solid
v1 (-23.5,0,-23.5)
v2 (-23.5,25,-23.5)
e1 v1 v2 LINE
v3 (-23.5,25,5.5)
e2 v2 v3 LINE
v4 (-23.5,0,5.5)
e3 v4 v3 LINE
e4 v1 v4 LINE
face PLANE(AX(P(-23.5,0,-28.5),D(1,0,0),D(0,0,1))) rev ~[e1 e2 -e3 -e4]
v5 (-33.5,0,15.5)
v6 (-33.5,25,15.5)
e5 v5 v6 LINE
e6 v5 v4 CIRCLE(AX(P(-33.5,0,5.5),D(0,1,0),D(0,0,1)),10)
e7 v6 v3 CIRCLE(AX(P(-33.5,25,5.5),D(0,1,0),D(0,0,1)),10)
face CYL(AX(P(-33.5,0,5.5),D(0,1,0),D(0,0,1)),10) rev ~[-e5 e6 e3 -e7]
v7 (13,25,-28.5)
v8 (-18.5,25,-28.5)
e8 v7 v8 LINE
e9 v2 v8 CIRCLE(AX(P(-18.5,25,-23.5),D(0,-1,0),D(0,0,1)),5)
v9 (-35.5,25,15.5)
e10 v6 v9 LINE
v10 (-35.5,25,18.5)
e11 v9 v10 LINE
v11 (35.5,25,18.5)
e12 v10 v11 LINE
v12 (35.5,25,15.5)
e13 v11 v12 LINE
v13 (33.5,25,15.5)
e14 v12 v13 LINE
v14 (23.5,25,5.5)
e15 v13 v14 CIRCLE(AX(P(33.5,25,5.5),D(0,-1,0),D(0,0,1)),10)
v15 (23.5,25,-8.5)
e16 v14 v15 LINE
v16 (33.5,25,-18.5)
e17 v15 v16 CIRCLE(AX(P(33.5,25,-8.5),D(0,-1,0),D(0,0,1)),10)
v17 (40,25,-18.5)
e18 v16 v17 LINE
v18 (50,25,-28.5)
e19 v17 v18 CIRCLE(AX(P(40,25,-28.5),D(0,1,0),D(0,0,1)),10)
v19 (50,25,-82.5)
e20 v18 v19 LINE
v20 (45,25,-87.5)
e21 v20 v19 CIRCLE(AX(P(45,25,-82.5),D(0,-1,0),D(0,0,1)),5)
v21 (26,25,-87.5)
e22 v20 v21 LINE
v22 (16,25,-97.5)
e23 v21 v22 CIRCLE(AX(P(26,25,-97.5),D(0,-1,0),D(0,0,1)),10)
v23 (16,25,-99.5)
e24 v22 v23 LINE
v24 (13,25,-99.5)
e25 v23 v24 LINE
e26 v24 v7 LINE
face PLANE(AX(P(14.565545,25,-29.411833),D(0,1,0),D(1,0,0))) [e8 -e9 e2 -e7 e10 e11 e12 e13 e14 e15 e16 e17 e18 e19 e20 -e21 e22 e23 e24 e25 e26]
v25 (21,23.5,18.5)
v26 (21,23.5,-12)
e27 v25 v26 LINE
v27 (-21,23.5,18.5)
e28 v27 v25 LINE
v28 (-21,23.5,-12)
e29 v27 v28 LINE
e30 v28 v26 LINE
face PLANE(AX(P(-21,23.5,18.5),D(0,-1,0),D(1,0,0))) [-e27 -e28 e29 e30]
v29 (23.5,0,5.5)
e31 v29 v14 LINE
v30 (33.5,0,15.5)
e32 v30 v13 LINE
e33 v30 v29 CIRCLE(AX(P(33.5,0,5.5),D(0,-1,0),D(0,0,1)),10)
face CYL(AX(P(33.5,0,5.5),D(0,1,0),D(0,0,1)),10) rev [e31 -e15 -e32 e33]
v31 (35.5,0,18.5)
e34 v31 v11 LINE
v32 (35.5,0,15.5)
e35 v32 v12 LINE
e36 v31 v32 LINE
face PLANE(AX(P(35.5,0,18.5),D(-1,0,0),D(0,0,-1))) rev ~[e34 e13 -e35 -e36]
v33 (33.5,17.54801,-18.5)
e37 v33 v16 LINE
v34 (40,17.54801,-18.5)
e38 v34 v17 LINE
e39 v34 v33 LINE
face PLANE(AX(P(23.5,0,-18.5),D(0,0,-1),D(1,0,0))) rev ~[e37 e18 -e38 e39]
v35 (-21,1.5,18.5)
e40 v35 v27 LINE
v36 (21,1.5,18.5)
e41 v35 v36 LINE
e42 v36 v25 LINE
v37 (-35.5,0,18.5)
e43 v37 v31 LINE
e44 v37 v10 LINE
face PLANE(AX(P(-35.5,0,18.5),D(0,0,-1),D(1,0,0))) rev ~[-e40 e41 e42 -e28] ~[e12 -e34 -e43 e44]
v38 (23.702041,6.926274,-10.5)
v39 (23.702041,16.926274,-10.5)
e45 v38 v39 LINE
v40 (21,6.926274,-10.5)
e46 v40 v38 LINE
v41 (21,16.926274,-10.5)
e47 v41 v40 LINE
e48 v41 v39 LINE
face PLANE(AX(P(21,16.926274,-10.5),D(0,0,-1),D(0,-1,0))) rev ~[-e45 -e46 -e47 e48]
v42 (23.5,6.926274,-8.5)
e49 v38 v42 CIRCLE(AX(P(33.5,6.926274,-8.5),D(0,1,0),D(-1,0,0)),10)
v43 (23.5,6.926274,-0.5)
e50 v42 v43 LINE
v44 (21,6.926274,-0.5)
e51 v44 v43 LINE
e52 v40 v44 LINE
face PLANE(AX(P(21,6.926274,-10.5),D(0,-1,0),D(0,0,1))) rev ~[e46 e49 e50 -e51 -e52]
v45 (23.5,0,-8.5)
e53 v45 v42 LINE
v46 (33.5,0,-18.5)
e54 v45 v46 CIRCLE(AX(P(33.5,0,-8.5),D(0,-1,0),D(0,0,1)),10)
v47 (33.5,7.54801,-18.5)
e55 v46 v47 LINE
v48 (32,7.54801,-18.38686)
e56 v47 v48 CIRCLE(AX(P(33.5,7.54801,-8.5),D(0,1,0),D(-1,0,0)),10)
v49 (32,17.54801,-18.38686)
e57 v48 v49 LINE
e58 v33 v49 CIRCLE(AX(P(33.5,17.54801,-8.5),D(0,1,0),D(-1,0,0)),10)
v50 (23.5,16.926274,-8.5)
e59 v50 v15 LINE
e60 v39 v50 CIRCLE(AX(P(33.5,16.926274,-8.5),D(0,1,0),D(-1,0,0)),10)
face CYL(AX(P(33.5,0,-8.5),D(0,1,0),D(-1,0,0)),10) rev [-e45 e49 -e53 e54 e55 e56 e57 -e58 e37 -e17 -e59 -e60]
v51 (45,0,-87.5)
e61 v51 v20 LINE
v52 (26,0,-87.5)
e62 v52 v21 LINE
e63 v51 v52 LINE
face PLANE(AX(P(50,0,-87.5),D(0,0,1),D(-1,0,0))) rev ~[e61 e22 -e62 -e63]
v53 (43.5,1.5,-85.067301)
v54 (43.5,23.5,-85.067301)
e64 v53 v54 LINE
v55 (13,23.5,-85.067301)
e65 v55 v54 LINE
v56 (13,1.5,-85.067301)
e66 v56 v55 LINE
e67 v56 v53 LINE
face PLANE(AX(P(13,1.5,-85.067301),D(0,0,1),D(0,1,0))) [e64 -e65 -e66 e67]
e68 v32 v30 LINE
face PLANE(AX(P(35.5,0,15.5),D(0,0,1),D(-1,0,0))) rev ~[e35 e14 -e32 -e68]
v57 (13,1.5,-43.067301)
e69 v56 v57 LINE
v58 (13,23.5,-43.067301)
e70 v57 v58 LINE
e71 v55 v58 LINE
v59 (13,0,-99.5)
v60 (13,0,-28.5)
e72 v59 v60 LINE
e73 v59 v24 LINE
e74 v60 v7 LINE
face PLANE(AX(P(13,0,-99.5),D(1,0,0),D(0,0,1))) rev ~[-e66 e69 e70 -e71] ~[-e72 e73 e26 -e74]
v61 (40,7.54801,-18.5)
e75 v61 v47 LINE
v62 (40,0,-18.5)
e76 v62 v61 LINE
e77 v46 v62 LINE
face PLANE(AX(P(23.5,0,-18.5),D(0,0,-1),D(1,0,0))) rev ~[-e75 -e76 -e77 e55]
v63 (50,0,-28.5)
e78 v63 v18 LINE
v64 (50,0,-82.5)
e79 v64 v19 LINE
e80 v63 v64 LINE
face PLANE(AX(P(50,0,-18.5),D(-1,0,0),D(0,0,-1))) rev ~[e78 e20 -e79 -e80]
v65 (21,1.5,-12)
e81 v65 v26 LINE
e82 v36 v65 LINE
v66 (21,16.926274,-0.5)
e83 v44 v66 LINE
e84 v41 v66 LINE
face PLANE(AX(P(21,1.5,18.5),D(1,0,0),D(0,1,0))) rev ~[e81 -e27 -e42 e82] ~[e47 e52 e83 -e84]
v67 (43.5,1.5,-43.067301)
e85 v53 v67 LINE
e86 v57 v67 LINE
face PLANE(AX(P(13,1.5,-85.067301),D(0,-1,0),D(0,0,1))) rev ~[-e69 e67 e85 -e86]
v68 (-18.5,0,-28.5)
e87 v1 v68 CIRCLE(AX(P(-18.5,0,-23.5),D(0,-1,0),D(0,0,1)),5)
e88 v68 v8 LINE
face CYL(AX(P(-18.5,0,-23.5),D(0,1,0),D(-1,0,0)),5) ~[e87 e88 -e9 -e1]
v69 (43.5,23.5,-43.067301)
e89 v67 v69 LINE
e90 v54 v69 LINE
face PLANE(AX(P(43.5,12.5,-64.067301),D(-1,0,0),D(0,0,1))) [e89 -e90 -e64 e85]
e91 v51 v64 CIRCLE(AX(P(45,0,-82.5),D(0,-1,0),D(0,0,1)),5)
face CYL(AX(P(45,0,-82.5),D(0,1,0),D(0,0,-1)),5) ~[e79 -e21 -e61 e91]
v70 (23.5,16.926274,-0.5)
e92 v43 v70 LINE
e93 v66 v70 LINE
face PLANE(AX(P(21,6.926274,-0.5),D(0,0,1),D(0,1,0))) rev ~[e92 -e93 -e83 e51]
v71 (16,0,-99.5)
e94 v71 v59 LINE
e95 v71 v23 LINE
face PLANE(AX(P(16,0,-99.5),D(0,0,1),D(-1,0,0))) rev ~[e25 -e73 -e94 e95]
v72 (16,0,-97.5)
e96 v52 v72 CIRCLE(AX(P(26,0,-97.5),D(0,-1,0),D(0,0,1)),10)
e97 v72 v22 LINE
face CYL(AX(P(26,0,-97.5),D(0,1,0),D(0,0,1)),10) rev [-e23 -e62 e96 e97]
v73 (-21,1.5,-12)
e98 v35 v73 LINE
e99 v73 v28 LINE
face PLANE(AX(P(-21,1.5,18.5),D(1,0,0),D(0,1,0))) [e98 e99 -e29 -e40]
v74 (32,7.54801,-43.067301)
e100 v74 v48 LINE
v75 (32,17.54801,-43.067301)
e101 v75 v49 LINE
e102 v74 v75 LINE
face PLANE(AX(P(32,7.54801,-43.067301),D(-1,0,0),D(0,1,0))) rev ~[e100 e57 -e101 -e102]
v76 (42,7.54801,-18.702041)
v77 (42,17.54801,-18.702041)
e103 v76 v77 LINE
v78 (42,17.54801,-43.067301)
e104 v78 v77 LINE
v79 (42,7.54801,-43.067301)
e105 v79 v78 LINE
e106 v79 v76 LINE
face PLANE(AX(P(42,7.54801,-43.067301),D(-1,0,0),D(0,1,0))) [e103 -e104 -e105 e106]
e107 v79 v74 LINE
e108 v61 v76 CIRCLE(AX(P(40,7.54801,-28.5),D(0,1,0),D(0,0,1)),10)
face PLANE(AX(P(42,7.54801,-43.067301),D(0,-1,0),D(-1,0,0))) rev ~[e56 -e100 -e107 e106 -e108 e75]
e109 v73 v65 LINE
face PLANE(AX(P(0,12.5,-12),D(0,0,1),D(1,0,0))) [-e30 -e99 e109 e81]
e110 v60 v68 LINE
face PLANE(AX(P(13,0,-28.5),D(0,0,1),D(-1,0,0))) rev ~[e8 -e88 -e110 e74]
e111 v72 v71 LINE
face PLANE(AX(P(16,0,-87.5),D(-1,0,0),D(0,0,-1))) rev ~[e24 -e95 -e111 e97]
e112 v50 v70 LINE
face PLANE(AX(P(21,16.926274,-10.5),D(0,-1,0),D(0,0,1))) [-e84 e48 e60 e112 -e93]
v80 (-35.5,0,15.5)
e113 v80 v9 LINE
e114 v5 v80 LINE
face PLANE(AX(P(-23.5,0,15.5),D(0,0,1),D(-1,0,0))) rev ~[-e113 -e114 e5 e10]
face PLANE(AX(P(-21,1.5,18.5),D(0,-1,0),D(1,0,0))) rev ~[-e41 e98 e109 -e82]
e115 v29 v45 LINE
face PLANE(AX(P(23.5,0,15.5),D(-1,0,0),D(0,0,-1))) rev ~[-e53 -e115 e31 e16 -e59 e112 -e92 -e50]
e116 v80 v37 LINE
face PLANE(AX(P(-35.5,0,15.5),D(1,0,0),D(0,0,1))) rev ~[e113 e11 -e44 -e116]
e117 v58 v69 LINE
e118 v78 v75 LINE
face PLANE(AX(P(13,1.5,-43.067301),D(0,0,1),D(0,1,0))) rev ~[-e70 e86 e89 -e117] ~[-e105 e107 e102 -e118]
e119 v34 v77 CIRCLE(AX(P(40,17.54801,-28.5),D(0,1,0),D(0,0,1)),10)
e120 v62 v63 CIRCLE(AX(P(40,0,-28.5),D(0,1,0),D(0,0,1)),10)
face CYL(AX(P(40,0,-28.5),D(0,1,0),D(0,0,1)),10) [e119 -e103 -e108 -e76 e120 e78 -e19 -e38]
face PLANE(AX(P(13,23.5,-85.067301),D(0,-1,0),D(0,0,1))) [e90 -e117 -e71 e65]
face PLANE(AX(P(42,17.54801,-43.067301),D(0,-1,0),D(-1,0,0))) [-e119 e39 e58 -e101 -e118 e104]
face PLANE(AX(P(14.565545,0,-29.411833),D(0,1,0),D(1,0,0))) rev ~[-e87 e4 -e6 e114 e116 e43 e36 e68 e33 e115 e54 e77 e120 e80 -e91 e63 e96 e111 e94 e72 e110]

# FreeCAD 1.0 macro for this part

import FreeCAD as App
import Part
import Sketcher

V = App.Vector


def edges_at(feature, points):
    """Names of the edges that pass closest to the given points."""
    edges = feature.Shape.Edges
    near = lambda p: min(range(len(edges)), key=lambda i: edges[i].distToShape(Part.Vertex(*p))[0])
    return sorted({f"Edge{near(p) + 1}" for p in points})


def add_polygon(sketch, points):
    """Adds a closed chain of lines whose ends are joined by coincident constraints."""
    first, n = sketch.GeometryCount, len(points)
    for a, b in zip(points, points[1:] + points[:1]):
        sketch.addGeometry(Part.LineSegment(App.Vector(*a, 0), App.Vector(*b, 0)), False)
    for i in range(n):
        sketch.addConstraint(Sketcher.Constraint("Coincident", first + i, 2, first + (i + 1) % n, 1))

doc = App.newDocument("Part")
params = doc.addObject("Spreadsheet::Sheet", "Params")
for row, (alias, value) in enumerate([
    ("sketch1_width", "12 mm"),
    ("sketch1_width2", "71 mm"),
    ("sketch1_width3", "34 mm"),
    ("sketch1_width4", "3 mm"),
    ("sketch1_height", "69 mm"),
    ("pad1_length", "25 mm"),
    ("sketch2_width", "42 mm"),
    ("sketch2_height", "22 mm"),
    ("pocket1_length", "30.5 mm"),
    ("sketch3_width", "22 mm"),
    ("sketch3_height", "42 mm"),
    ("pocket2_length", "30.5 mm"),
    ("fillet_radius", "10 mm"),
    ("fillet2_radius", "5 mm"),
    ("fillet3_radius", "5 mm"),
    ("sketch4_width", "10 mm"),
    ("pocket3_length", "30.5 mm"),
    ("sketch5_width", "10 mm"),
    ("pocket4_length", "30.5 mm"),
], start=1):
    params.set(f"A{row}", alias)
    params.set(f"B{row}", "=" + value)
    params.setAlias(f"B{row}", alias)

body = doc.addObject("PartDesign::Body", "Body")

# Sketch on XZ plane
sketch1 = body.newObject("Sketcher::SketchObject", "Sketch")
sketch1.AttachmentSupport = (doc.getObject("XZ_Plane"), [""])
sketch1.MapMode = "FlatFace"
add_polygon(sketch1, [(-23.5, 15.5), (-35.5, 15.5), (-35.5, 18.5), (35.5, 18.5), (35.5, 15.5), (23.5, 15.5), (23.5, -18.5), (50, -18.5), (50, -87.5), (16, -87.5), (16, -99.5), (13, -99.5), (13, -28.5), (-23.5, -28.5)])  # lines 0-13
sketch1.addConstraint(Sketcher.Constraint("Horizontal", 0))
sketch1.addConstraint(Sketcher.Constraint("Vertical", 1))
sketch1.addConstraint(Sketcher.Constraint("Horizontal", 2))
sketch1.addConstraint(Sketcher.Constraint("Vertical", 3))
sketch1.addConstraint(Sketcher.Constraint("Horizontal", 4))
sketch1.addConstraint(Sketcher.Constraint("Vertical", 5))
sketch1.addConstraint(Sketcher.Constraint("Horizontal", 6))
sketch1.addConstraint(Sketcher.Constraint("Vertical", 7))
sketch1.addConstraint(Sketcher.Constraint("Horizontal", 8))
sketch1.addConstraint(Sketcher.Constraint("Vertical", 9))
sketch1.addConstraint(Sketcher.Constraint("Horizontal", 10))
sketch1.addConstraint(Sketcher.Constraint("Vertical", 11))
sketch1.addConstraint(Sketcher.Constraint("Horizontal", 12))
sketch1.addConstraint(Sketcher.Constraint("Vertical", 13))
sketch1.addConstraint(Sketcher.Constraint("Symmetric", 0, 2, 3, 2, -2))
sketch1.addConstraint(Sketcher.Constraint("Equal", 0, 4))
sketch1.addConstraint(Sketcher.Constraint("Equal", 10, 1))
sketch1.addConstraint(Sketcher.Constraint("Equal", 8, 5))
sketch1.addConstraint(Sketcher.Constraint("Equal", 4, 9))
sketch1.addConstraint(Sketcher.Constraint("Equal", 2, 11))
sketch1.addConstraint(Sketcher.Constraint("DistanceX", 0, 2, 0, 1, 12.0))
sketch1.addConstraint(Sketcher.Constraint("DistanceX", 2, 1, 2, 2, 71.0))
sketch1.addConstraint(Sketcher.Constraint("DistanceX", 8, 2, 8, 1, 34.0))
sketch1.addConstraint(Sketcher.Constraint("DistanceX", 10, 2, 10, 1, 3.0))
sketch1.addConstraint(Sketcher.Constraint("DistanceY", 7, 2, 7, 1, 69.0))
sketch1.addConstraint(Sketcher.Constraint("DistanceX", 6, 1, 6, 2, 26.5))
sketch1.addConstraint(Sketcher.Constraint("DistanceY", -1, 1, 0, 2, 15.5))
sketch1.setExpression("Constraints[34]", "Params.sketch1_width")
sketch1.setExpression("Constraints[35]", "Params.sketch1_width2")
sketch1.setExpression("Constraints[36]", "Params.sketch1_width3")
sketch1.setExpression("Constraints[37]", "Params.sketch1_width4")
sketch1.setExpression("Constraints[38]", "Params.sketch1_height")
pad1 = body.newObject("PartDesign::Pad", "Pad")
pad1.Profile = sketch1
pad1.setExpression("Length", "Params.pad1_length")
pad1.Reversed = True

# Sketch on XY plane
sketch2 = body.newObject("Sketcher::SketchObject", "Sketch001")
sketch2.AttachmentSupport = (doc.getObject("XY_Plane"), [""])
sketch2.MapMode = "FlatFace"
sketch2.AttachmentOffset = App.Placement(V(0, 0, 18.5), App.Rotation())
add_polygon(sketch2, [(-21, 24), (-21, 2), (21, 2), (21, 24)])  # lines 0-3
sketch2.addConstraint(Sketcher.Constraint("Vertical", 0))
sketch2.addConstraint(Sketcher.Constraint("Horizontal", 1))
sketch2.addConstraint(Sketcher.Constraint("Vertical", 2))
sketch2.addConstraint(Sketcher.Constraint("Horizontal", 3))
sketch2.addConstraint(Sketcher.Constraint("DistanceX", 1, 1, 1, 2, 42.0))
sketch2.addConstraint(Sketcher.Constraint("DistanceY", 0, 2, 0, 1, 22.0))
sketch2.addConstraint(Sketcher.Constraint("DistanceX", 0, 2, -1, 1, 21.0))
sketch2.addConstraint(Sketcher.Constraint("DistanceY", -1, 1, 0, 2, 1.5))
sketch2.setExpression("Constraints[8]", "Params.sketch2_width")
sketch2.setExpression("Constraints[9]", "Params.sketch2_height")
pocket1 = body.newObject("PartDesign::Pocket", "Pocket")
pocket1.Profile = sketch2
pocket1.setExpression("Length", "Params.pocket1_length")

# Sketch on YZ plane
sketch3 = body.newObject("Sketcher::SketchObject", "Sketch002")
sketch3.AttachmentSupport = (doc.getObject("YZ_Plane"), [""])
sketch3.MapMode = "FlatFace"
sketch3.AttachmentOffset = App.Placement(V(0, 0, 13), App.Rotation())
add_polygon(sketch3, [(24, -85), (2, -85), (2, -43), (24, -43)])  # lines 0-3
sketch3.addConstraint(Sketcher.Constraint("Horizontal", 0))
sketch3.addConstraint(Sketcher.Constraint("Vertical", 1))
sketch3.addConstraint(Sketcher.Constraint("Horizontal", 2))
sketch3.addConstraint(Sketcher.Constraint("Vertical", 3))
sketch3.addConstraint(Sketcher.Constraint("DistanceX", 0, 2, 0, 1, 22.0))
sketch3.addConstraint(Sketcher.Constraint("DistanceY", 1, 1, 1, 2, 42.0))
sketch3.addConstraint(Sketcher.Constraint("DistanceX", -1, 1, 0, 2, 1.5))
sketch3.addConstraint(Sketcher.Constraint("DistanceY", 0, 2, -1, 1, 85.067301))
sketch3.setExpression("Constraints[8]", "Params.sketch3_width")
sketch3.setExpression("Constraints[9]", "Params.sketch3_height")
pocket2 = body.newObject("PartDesign::Pocket", "Pocket001")
pocket2.Profile = sketch3
pocket2.setExpression("Length", "Params.pocket2_length")
pocket2.Reversed = True
doc.recompute()

fillet = body.newObject("PartDesign::Fillet", "Fillet")
fillet.Base = (pocket2, edges_at(pocket2, [
    (16, 12.5, -87.5),
    (50, 12.5, -18.5),
    (23.5, 12.5, -18.5),
    (-23.5, 12.5, 15.5),
    (23.5, 12.5, 15.5),
]))
fillet.setExpression("Radius", "Params.fillet_radius")
doc.recompute()

fillet2 = body.newObject("PartDesign::Fillet", "Fillet001")
fillet2.Base = (fillet, edges_at(fillet, [(-23.5, 12.5, -28.5)]))
fillet2.setExpression("Radius", "Params.fillet2_radius")
doc.recompute()

fillet3 = body.newObject("PartDesign::Fillet", "Fillet002")
fillet3.Base = (fillet2, edges_at(fillet2, [(50, 12.5, -87.5)]))
fillet3.setExpression("Radius", "Params.fillet3_radius")

# Sketch on YZ plane
sketch4 = body.newObject("Sketcher::SketchObject", "Sketch003")
sketch4.AttachmentSupport = (doc.getObject("YZ_Plane"), [""])
sketch4.MapMode = "FlatFace"
sketch4.AttachmentOffset = App.Placement(V(0, 0, 21), App.Rotation())
add_polygon(sketch4, [(7, -10), (7, 0), (17, 0), (17, -10)])  # lines 0-3
sketch4.addConstraint(Sketcher.Constraint("Vertical", 0))
sketch4.addConstraint(Sketcher.Constraint("Horizontal", 1))
sketch4.addConstraint(Sketcher.Constraint("Vertical", 2))
sketch4.addConstraint(Sketcher.Constraint("Horizontal", 3))
sketch4.addConstraint(Sketcher.Constraint("Equal", 3, 0))
sketch4.addConstraint(Sketcher.Constraint("DistanceX", 1, 1, 1, 2, 10.0))
sketch4.addConstraint(Sketcher.Constraint("DistanceY", 0, 2, -1, 1, 0.5))
sketch4.addConstraint(Sketcher.Constraint("DistanceX", -1, 1, 0, 2, 6.926274))
sketch4.setExpression("Constraints[9]", "Params.sketch4_width")
pocket3 = body.newObject("PartDesign::Pocket", "Pocket002")
pocket3.Profile = sketch4
pocket3.setExpression("Length", "Params.pocket3_length")
pocket3.Reversed = True

# Sketch on XY plane
sketch5 = body.newObject("Sketcher::SketchObject", "Sketch004")
sketch5.AttachmentSupport = (doc.getObject("XY_Plane"), [""])
sketch5.MapMode = "FlatFace"
sketch5.AttachmentOffset = App.Placement(V(0, 0, -43.067301), App.Rotation())
add_polygon(sketch5, [(42, 18), (42, 8), (32, 8), (32, 18)])  # lines 0-3
sketch5.addConstraint(Sketcher.Constraint("Vertical", 0))
sketch5.addConstraint(Sketcher.Constraint("Horizontal", 1))
sketch5.addConstraint(Sketcher.Constraint("Vertical", 2))
sketch5.addConstraint(Sketcher.Constraint("Horizontal", 3))
sketch5.addConstraint(Sketcher.Constraint("Equal", 3, 0))
sketch5.addConstraint(Sketcher.Constraint("DistanceX", 1, 2, 1, 1, 10.0))
sketch5.addConstraint(Sketcher.Constraint("DistanceX", -1, 1, 0, 2, 42.0))
sketch5.addConstraint(Sketcher.Constraint("DistanceY", -1, 1, 0, 2, 7.54801))
sketch5.setExpression("Constraints[9]", "Params.sketch5_width")
pocket4 = body.newObject("PartDesign::Pocket", "Pocket003")
pocket4.Profile = sketch5
pocket4.setExpression("Length", "Params.pocket4_length")
pocket4.Reversed = True

doc.recompute()
